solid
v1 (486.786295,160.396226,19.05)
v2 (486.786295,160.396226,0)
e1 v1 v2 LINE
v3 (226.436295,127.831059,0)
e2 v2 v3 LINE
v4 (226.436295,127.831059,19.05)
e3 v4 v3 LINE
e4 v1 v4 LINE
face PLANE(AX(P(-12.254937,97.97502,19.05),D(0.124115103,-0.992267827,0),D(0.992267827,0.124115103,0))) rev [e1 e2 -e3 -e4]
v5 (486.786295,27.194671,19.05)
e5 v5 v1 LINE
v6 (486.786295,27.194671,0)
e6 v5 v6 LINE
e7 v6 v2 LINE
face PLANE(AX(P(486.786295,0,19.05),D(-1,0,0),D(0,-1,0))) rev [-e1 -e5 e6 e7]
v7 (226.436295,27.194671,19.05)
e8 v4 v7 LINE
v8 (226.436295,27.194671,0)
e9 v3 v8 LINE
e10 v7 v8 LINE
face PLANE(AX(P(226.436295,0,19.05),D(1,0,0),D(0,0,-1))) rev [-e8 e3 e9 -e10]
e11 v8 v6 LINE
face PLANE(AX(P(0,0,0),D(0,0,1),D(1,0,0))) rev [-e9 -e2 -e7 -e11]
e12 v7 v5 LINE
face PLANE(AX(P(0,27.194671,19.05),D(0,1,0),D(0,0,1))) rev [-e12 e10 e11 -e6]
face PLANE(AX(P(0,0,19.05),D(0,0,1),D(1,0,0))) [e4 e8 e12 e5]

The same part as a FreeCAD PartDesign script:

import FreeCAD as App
import Part
import Sketcher
from FreeCAD import Vector
Q = App.Units.Quantity

doc = App.newDocument("Part")
params = doc.addObject("Spreadsheet::Sheet", "Params")
for row, (alias, value) in enumerate([
    ("sketch1_width", "10.25 in"),
    ("pad1_length", "0.75 in"),
], start=1):
    params.set(f"A{row}", alias)
    params.set(f"B{row}", "=" + value)
    params.setAlias(f"B{row}", alias)

body = doc.addObject("PartDesign::Body", "Body")

sketch1 = body.newObject("Sketcher::SketchObject", "Sketch")
sketch1.AttachmentSupport = (doc.getObject("XY_Plane"), [""])
sketch1.MapMode = "FlatFace"
sketch1.addGeometry(Part.LineSegment(Vector(226, 128, 0), Vector(226, 27, 0)), False)
sketch1.addGeometry(Part.LineSegment(Vector(226, 27, 0), Vector(487, 27, 0)), False)
sketch1.addGeometry(Part.LineSegment(Vector(487, 27, 0), Vector(487, 160, 0)), False)
sketch1.addGeometry(Part.LineSegment(Vector(487, 160, 0), Vector(226, 128, 0)), False)
sketch1.addConstraint(Sketcher.Constraint("Coincident", 0, 2, 1, 1))
sketch1.addConstraint(Sketcher.Constraint("Coincident", 1, 2, 2, 1))
sketch1.addConstraint(Sketcher.Constraint("Coincident", 2, 2, 3, 1))
sketch1.addConstraint(Sketcher.Constraint("Coincident", 3, 2, 0, 1))
sketch1.addConstraint(Sketcher.Constraint("Vertical", 0))
sketch1.addConstraint(Sketcher.Constraint("Horizontal", 1))
sketch1.addConstraint(Sketcher.Constraint("Vertical", 2))
sketch1.addConstraint(Sketcher.Constraint("DistanceX", 1, 1, 1, 2, Q("10.25 in")))
sketch1.addConstraint(Sketcher.Constraint("DistanceY", 0, 2, 0, 1, 100.636388))
sketch1.addConstraint(Sketcher.Constraint("DistanceY", 2, 1, 2, 2, 133.201554))
sketch1.addConstraint(Sketcher.Constraint("DistanceY", -1, 1, 0, 2, 27.194671))
sketch1.addConstraint(Sketcher.Constraint("DistanceX", -1, 1, 0, 2, 226.436295))
sketch1.setExpression("Constraints[7]", "Params.sketch1_width")
pad1 = body.newObject("PartDesign::Pad", "Pad")
pad1.Profile = sketch1
pad1.setExpression("Length", "Params.pad1_length")

doc.recompute()
